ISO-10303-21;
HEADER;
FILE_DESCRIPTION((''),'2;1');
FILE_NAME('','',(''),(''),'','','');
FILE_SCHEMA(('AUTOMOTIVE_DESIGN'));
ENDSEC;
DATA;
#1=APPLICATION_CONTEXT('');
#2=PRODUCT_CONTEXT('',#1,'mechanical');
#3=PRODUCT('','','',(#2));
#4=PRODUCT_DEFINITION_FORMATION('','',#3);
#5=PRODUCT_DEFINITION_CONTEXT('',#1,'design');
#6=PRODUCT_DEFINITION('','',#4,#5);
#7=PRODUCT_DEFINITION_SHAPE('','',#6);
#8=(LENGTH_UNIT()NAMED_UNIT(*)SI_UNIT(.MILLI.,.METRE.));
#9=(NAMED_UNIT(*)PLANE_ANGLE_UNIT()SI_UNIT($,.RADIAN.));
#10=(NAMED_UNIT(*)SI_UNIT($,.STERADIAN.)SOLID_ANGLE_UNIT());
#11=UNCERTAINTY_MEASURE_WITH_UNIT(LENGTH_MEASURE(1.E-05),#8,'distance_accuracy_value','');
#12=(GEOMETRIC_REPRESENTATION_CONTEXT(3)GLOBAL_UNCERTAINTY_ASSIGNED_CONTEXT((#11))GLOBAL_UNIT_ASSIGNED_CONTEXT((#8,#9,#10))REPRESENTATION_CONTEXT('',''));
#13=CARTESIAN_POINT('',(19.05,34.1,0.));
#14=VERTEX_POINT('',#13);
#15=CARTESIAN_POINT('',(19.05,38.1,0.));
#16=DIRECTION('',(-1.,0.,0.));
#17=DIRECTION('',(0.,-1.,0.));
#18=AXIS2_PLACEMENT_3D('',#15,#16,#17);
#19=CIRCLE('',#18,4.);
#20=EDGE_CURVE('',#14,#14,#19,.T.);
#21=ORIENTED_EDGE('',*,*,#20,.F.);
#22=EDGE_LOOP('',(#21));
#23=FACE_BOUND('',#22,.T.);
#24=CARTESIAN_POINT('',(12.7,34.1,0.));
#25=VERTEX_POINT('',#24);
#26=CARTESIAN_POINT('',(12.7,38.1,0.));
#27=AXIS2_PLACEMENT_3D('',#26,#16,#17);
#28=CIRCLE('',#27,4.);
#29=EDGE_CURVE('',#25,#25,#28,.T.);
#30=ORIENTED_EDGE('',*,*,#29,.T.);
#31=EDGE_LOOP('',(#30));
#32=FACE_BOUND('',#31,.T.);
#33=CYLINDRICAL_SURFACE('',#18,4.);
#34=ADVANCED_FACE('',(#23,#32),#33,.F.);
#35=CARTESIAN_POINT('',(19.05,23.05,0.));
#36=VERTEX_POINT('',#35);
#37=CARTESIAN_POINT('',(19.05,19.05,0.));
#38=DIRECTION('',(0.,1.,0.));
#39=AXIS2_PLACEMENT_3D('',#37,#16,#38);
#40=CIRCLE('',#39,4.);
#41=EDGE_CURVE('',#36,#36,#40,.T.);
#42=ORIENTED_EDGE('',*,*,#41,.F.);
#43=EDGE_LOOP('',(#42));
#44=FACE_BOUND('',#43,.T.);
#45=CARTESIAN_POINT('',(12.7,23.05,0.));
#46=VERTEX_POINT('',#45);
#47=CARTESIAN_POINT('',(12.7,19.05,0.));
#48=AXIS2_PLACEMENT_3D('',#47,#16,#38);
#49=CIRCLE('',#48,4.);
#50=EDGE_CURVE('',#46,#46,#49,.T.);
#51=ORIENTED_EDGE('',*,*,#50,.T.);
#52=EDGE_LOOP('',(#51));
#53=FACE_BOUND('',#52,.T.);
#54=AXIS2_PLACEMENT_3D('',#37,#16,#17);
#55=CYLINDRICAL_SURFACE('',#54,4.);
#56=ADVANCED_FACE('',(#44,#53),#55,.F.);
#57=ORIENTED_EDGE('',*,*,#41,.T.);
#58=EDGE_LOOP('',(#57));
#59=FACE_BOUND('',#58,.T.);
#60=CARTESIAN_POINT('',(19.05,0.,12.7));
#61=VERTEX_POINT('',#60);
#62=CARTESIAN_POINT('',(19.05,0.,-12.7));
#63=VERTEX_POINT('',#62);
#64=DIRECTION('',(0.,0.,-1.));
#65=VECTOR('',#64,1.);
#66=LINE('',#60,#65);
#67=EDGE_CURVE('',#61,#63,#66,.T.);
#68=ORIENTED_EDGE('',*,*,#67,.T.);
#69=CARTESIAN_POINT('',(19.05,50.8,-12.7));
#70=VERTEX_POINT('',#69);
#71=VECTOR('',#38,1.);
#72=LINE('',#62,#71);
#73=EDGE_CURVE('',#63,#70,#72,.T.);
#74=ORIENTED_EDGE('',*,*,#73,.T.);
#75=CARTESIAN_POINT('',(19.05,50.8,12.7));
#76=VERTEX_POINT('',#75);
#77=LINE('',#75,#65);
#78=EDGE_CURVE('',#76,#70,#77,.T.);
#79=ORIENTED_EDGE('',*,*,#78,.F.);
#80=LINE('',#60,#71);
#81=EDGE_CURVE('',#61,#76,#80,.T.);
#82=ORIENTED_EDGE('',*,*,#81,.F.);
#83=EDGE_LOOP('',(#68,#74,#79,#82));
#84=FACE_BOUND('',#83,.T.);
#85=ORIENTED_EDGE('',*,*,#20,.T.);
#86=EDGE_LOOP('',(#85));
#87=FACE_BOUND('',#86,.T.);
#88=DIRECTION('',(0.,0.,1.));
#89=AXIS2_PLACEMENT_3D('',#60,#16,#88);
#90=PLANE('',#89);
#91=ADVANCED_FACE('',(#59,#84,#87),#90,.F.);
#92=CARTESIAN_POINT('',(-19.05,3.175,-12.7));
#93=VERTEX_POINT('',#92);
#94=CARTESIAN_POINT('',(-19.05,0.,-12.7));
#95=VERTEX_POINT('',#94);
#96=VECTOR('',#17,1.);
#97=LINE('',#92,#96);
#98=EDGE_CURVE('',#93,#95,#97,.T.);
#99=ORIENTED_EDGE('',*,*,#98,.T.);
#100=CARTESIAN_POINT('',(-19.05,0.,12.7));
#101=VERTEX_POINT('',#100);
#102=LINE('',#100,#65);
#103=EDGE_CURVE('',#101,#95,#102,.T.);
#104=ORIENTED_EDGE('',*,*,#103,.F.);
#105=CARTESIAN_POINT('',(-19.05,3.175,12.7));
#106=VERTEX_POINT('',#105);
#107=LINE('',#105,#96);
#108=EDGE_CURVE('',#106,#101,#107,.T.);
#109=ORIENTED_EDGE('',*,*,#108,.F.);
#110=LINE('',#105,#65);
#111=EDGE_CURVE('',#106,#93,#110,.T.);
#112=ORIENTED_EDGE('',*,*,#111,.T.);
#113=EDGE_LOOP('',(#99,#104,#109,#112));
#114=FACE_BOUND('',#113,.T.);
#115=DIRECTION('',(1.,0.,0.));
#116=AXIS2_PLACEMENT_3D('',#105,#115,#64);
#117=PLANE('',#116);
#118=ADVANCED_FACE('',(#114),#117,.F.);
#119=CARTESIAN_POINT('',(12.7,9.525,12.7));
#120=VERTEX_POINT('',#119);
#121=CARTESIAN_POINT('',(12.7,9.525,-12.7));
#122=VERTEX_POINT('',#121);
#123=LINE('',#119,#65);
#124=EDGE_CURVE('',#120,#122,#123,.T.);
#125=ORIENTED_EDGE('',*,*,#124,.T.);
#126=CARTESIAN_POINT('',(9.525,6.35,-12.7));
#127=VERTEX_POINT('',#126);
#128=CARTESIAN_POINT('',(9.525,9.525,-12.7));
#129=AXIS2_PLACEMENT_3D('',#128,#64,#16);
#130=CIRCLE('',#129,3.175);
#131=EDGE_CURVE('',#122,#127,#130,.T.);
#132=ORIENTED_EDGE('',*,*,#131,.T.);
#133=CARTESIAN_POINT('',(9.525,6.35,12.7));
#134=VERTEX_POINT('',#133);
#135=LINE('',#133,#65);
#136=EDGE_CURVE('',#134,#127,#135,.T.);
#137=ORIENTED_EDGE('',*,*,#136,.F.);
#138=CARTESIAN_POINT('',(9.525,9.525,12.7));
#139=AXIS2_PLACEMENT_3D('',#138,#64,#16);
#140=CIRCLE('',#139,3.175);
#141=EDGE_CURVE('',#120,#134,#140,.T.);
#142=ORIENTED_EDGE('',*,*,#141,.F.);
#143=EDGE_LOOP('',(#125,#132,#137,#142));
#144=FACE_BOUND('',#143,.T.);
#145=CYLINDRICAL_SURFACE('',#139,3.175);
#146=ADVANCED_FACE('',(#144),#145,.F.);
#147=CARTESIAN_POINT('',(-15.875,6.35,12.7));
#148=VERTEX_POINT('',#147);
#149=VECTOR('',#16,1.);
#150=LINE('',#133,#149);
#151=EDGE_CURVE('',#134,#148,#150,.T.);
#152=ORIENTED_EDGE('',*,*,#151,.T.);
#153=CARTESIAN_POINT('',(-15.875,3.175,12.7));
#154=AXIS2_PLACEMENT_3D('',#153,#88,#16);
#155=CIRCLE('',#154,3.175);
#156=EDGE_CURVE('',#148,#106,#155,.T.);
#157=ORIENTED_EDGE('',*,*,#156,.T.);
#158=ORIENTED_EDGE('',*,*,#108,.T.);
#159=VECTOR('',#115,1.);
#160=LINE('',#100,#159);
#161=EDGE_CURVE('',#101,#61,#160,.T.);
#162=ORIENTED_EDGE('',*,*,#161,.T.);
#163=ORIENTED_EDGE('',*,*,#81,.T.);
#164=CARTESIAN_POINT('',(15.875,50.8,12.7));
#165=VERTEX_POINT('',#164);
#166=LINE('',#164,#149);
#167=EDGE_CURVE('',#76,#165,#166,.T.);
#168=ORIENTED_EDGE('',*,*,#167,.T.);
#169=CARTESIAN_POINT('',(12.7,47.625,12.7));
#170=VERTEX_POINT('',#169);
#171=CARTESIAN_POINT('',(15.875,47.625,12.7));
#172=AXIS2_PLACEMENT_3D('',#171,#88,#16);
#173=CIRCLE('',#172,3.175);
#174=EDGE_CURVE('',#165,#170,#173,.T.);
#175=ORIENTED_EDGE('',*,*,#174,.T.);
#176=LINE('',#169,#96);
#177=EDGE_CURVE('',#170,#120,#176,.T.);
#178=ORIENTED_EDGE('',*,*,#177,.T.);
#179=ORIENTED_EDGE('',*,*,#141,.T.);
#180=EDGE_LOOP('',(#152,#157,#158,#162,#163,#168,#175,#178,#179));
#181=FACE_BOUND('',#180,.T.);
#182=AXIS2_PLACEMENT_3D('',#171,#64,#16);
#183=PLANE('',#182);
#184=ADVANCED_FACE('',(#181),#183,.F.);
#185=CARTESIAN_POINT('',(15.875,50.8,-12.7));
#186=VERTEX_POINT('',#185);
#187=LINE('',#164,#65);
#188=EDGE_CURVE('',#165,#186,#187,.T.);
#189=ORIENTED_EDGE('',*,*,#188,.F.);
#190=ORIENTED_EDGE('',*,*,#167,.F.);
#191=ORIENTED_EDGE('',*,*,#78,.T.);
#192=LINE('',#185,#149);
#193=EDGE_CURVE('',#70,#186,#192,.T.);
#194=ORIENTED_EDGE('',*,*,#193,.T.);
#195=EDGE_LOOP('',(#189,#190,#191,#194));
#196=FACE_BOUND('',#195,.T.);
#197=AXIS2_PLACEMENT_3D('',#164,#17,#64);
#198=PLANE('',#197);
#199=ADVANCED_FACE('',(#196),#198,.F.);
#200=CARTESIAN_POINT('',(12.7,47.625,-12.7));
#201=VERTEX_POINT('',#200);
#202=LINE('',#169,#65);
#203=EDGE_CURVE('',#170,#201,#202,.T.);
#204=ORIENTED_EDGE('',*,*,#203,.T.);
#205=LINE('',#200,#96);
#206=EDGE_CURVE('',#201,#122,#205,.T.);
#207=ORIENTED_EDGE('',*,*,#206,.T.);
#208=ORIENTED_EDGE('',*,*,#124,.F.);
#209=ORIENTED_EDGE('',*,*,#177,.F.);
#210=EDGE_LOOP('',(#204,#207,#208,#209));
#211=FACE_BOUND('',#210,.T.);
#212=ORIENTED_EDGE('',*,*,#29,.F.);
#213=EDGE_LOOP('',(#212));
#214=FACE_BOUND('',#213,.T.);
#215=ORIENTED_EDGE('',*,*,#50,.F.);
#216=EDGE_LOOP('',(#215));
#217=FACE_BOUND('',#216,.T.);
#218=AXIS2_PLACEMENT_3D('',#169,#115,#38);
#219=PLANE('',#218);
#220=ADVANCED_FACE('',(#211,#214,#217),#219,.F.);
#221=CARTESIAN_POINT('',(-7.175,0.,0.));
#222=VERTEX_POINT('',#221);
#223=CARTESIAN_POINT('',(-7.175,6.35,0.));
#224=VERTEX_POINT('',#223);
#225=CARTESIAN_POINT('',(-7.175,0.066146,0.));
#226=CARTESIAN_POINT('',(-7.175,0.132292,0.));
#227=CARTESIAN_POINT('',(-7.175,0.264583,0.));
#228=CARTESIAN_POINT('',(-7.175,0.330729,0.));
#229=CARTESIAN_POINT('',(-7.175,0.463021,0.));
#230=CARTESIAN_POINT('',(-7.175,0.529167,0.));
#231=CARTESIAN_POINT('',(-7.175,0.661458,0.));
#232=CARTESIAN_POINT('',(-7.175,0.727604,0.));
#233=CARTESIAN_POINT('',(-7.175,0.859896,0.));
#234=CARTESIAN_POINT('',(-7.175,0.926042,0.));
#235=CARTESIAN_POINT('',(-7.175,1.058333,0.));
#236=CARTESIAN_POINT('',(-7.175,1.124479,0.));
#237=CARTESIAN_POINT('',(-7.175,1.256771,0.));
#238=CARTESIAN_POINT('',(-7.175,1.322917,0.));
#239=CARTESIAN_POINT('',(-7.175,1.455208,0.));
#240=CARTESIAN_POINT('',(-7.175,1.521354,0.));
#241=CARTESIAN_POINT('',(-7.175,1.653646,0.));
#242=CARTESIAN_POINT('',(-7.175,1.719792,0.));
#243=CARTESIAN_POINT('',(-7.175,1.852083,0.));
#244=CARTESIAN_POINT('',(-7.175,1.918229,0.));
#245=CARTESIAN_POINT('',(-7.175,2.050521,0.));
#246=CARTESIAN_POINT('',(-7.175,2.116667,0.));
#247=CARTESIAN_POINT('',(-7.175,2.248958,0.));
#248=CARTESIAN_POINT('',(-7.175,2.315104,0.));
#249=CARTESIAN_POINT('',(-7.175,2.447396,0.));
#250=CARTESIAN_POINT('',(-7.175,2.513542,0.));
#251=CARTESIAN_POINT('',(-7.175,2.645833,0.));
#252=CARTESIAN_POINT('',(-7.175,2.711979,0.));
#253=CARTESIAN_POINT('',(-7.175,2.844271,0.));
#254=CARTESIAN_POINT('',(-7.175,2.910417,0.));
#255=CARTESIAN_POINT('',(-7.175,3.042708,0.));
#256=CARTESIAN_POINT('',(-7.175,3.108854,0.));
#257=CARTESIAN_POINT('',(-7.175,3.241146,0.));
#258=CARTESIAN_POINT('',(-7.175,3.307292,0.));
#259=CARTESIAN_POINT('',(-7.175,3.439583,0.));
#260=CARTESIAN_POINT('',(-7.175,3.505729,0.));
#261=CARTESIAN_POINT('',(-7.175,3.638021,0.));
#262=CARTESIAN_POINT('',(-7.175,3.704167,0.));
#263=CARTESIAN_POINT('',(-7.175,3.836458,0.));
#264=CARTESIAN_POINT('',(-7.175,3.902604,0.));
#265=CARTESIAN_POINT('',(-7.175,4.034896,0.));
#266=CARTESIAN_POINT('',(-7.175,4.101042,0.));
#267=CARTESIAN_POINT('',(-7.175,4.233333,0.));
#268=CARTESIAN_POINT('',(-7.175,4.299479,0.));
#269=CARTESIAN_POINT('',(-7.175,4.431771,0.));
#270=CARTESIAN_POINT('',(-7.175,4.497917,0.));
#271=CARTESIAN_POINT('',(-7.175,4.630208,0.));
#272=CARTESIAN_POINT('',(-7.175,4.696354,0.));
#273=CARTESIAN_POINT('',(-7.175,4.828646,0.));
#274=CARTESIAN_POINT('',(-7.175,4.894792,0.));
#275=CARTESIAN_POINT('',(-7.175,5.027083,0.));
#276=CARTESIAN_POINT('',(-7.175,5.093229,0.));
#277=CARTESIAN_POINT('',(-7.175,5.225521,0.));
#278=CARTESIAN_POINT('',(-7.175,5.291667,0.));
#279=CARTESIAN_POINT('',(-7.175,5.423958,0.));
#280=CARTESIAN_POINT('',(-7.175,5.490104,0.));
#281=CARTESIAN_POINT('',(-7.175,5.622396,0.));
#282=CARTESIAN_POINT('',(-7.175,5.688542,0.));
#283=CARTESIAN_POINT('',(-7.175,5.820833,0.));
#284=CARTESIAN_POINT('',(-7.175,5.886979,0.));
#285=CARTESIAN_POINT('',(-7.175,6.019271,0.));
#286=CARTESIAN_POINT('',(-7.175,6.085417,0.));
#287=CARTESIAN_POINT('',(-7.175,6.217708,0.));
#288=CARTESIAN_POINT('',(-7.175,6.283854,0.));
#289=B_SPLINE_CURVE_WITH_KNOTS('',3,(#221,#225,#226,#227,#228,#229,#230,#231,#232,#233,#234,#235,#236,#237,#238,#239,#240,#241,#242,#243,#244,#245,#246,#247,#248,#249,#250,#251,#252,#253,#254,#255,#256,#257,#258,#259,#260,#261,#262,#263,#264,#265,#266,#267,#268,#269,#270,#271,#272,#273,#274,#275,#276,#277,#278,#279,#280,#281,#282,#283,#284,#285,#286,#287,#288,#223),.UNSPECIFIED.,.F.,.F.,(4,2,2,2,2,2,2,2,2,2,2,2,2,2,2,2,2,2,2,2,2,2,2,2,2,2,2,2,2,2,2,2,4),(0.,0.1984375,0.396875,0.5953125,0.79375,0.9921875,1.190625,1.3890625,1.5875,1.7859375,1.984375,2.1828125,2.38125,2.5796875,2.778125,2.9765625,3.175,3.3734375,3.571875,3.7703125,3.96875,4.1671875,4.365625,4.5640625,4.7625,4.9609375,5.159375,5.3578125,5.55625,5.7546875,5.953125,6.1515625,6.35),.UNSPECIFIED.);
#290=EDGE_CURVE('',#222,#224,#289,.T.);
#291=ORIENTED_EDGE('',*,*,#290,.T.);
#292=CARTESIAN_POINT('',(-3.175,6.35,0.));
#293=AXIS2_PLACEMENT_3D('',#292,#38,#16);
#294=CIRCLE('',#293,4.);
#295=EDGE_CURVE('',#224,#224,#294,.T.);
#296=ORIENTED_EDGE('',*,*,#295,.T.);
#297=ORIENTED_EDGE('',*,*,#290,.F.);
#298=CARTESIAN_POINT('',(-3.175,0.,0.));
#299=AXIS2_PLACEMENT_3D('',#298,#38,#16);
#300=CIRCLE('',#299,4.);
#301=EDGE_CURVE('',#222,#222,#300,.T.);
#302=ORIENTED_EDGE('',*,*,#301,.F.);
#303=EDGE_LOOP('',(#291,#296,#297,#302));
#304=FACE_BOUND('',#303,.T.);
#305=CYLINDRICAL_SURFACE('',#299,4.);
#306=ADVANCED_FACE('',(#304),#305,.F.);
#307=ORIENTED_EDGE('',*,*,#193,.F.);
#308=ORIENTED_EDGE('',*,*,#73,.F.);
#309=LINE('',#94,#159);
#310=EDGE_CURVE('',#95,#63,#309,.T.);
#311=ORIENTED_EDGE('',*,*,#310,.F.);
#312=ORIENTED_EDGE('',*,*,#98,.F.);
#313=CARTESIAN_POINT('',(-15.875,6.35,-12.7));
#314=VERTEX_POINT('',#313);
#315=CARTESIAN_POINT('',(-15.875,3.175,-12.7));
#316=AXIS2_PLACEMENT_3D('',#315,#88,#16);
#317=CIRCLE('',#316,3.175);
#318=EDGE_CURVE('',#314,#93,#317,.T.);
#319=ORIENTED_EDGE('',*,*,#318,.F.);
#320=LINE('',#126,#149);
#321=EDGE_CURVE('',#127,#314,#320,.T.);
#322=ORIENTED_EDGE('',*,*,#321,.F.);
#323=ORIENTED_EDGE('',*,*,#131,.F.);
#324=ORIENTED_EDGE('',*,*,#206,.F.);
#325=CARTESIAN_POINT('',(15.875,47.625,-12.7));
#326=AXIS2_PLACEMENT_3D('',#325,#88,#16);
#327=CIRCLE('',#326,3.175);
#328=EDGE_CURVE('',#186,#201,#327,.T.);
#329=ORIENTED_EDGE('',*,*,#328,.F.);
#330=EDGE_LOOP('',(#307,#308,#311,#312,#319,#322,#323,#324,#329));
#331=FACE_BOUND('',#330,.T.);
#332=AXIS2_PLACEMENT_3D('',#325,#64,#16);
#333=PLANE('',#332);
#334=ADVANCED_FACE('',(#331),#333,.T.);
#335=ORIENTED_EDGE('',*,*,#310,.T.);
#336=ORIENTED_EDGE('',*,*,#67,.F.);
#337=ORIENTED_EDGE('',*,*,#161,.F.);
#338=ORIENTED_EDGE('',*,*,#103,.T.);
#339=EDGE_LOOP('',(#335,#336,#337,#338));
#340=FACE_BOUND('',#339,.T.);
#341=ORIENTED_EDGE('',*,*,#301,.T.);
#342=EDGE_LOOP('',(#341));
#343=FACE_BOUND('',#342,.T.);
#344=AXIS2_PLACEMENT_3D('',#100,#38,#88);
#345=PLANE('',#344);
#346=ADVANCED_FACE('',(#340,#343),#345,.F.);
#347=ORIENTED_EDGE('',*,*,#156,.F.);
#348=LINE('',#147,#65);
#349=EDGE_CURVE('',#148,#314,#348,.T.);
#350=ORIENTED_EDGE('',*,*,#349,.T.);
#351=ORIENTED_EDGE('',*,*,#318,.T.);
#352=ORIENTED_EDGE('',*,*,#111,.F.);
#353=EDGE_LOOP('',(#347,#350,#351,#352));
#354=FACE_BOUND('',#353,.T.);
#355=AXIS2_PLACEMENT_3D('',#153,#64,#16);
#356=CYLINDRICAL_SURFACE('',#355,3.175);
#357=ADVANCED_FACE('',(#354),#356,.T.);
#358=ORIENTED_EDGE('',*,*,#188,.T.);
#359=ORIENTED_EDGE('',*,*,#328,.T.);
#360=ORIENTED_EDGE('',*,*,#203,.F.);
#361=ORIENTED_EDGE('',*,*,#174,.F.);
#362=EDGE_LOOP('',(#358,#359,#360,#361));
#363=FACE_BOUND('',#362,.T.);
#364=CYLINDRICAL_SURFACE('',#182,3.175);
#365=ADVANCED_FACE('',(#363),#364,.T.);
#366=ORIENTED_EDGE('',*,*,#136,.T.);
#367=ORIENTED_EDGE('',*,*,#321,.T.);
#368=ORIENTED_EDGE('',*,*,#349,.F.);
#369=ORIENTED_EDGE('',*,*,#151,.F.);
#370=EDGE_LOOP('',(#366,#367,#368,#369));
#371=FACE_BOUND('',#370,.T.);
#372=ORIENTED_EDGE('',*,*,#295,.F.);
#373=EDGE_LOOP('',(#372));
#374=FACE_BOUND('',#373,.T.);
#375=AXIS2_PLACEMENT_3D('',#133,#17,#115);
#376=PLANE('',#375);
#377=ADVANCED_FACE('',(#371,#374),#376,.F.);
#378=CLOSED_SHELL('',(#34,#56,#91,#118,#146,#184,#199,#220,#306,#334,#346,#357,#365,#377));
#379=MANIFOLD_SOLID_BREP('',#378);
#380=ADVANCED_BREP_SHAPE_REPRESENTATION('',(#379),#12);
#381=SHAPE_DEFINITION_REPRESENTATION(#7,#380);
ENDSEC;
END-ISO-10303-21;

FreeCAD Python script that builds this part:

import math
import FreeCAD as App
import Part
import Sketcher

V = App.Vector
Q = App.Units.Quantity

doc = App.newDocument("Part")
body = doc.addObject("PartDesign::Body", "Body")

# Sketch on XY plane
sketch1 = doc.addObject("Sketcher::SketchObject", "Sketch")
body.addObject(sketch1)
sketch1.AttachmentSupport = (doc.XY_Plane, [""])
sketch1.MapMode = "FlatFace"
sketch1.addGeometry([
    Part.LineSegment(V(-19.1, 0, 0), V(19.1, 0, 0)),  # 0
    Part.LineSegment(V(19.1, 0, 0), V(19.1, 50.8, 0)),  # 1
    Part.LineSegment(V(19.1, 50.8, 0), V(15.9, 50.8, 0)),  # 2
    Part.ArcOfCircle(Part.Circle(V(15.9, 47.6, 0), V(0, 0, 1), 3.2), math.radians(90), math.radians(180)),  # 3
    Part.LineSegment(V(12.7, 47.6, 0), V(12.7, 9.5, 0)),  # 4
    Part.ArcOfCircle(Part.Circle(V(9.5, 9.5, 0), V(0, 0, 1), 3.2), math.radians(-90), math.radians(0)),  # 5
    Part.LineSegment(V(9.5, 6.3, 0), V(-15.9, 6.3, 0)),  # 6
    Part.ArcOfCircle(Part.Circle(V(-15.9, 3.2, 0), V(0, 0, 1), 3.2), math.radians(90), math.radians(180)),  # 7
    Part.LineSegment(V(-19.1, 3.2, 0), V(-19.1, 0, 0)),  # 8
], False)
sketch1.addConstraint([
    Sketcher.Constraint("Coincident", 0, 2, 1, 1),
    Sketcher.Constraint("Coincident", 1, 2, 2, 1),
    Sketcher.Constraint("Tangent", 2, 2, 3, 1),
    Sketcher.Constraint("Tangent", 3, 2, 4, 1),
    Sketcher.Constraint("Tangent", 4, 2, 5, 2),
    Sketcher.Constraint("Tangent", 5, 1, 6, 1),
    Sketcher.Constraint("Tangent", 6, 2, 7, 1),
    Sketcher.Constraint("Tangent", 7, 2, 8, 1),
    Sketcher.Constraint("Coincident", 8, 2, 0, 1),
    Sketcher.Constraint("Horizontal", 0),
    Sketcher.Constraint("Vertical", 1),
    Sketcher.Constraint("Horizontal", 2),
    Sketcher.Constraint("Vertical", 4),
    Sketcher.Constraint("Horizontal", 6),
    Sketcher.Constraint("Vertical", 8),
    Sketcher.Constraint("Equal", 3, 5),
    Sketcher.Constraint("Equal", 5, 7),
    Sketcher.Constraint("Symmetric", 0, 2, 8, 2, -1, 1),
    Sketcher.Constraint("Equal", 0, 4),
    Sketcher.Constraint("Equal", 2, 8),
    Sketcher.Constraint("DistanceX", 6, 2, 6, 1, Q("1 in")),
    Sketcher.Constraint("DistanceY", 1, 1, 1, 2, Q("2 in")),
    Sketcher.Constraint("Radius", 3, Q("0.125 in")),
])
pad1 = doc.addObject("PartDesign::Pad", "Pad")
body.addObject(pad1)
pad1.Profile = sketch1
pad1.Length = Q("1 in")
pad1.Midplane = True

# Sketch on XZ plane
sketch2 = doc.addObject("Sketcher::SketchObject", "Sketch001")
body.addObject(sketch2)
sketch2.AttachmentSupport = (doc.XZ_Plane, [""])
sketch2.MapMode = "FlatFace"
sketch2.AttachmentOffset = App.Placement(V(0, 0, -0.25 * 25.4), App.Rotation())
sketch2.addGeometry(Part.Circle(V(-3.2, 0, 0), V(0, 0, 1), 4), False)
sketch2.addConstraint([
    Sketcher.Constraint("PointOnObject", 0, 3, -1),
    Sketcher.Constraint("Diameter", 0, Q("8 mm")),
    Sketcher.Constraint("DistanceX", 0, 3, -1, 1, Q("0.125 in")),
])
pocket1 = doc.addObject("PartDesign::Pocket", "Pocket")
body.addObject(pocket1)
pocket1.Profile = sketch2
pocket1.Type = "ThroughAll"
pocket1.Reversed = True

# Sketch on YZ plane
sketch3 = doc.addObject("Sketcher::SketchObject", "Sketch002")
body.addObject(sketch3)
sketch3.AttachmentSupport = (doc.YZ_Plane, [""])
sketch3.MapMode = "FlatFace"
sketch3.AttachmentOffset = App.Placement(V(0, 0, 0.5 * 25.4), App.Rotation())
sketch3.addGeometry([
    Part.Circle(V(38.1, 0, 0), V(0, 0, 1), 4),
    Part.Circle(V(19.1, 0, 0), V(0, 0, 1), 4),
], False)
sketch3.addConstraint([
    Sketcher.Constraint("Equal", 0, 1),
    Sketcher.Constraint("PointOnObject", 0, 3, -1),
    Sketcher.Constraint("PointOnObject", 1, 3, -1),
    Sketcher.Constraint("DistanceX", -1, 1, 0, 3, Q("1.5 in")),
    Sketcher.Constraint("Diameter", 0, Q("8 mm")),
    Sketcher.Constraint("DistanceX", -1, 1, 1, 3, Q("0.75 in")),
])
pocket2 = doc.addObject("PartDesign::Pocket", "Pocket001")
body.addObject(pocket2)
pocket2.Profile = sketch3
pocket2.Type = "ThroughAll"
pocket2.Reversed = True

doc.recompute()
